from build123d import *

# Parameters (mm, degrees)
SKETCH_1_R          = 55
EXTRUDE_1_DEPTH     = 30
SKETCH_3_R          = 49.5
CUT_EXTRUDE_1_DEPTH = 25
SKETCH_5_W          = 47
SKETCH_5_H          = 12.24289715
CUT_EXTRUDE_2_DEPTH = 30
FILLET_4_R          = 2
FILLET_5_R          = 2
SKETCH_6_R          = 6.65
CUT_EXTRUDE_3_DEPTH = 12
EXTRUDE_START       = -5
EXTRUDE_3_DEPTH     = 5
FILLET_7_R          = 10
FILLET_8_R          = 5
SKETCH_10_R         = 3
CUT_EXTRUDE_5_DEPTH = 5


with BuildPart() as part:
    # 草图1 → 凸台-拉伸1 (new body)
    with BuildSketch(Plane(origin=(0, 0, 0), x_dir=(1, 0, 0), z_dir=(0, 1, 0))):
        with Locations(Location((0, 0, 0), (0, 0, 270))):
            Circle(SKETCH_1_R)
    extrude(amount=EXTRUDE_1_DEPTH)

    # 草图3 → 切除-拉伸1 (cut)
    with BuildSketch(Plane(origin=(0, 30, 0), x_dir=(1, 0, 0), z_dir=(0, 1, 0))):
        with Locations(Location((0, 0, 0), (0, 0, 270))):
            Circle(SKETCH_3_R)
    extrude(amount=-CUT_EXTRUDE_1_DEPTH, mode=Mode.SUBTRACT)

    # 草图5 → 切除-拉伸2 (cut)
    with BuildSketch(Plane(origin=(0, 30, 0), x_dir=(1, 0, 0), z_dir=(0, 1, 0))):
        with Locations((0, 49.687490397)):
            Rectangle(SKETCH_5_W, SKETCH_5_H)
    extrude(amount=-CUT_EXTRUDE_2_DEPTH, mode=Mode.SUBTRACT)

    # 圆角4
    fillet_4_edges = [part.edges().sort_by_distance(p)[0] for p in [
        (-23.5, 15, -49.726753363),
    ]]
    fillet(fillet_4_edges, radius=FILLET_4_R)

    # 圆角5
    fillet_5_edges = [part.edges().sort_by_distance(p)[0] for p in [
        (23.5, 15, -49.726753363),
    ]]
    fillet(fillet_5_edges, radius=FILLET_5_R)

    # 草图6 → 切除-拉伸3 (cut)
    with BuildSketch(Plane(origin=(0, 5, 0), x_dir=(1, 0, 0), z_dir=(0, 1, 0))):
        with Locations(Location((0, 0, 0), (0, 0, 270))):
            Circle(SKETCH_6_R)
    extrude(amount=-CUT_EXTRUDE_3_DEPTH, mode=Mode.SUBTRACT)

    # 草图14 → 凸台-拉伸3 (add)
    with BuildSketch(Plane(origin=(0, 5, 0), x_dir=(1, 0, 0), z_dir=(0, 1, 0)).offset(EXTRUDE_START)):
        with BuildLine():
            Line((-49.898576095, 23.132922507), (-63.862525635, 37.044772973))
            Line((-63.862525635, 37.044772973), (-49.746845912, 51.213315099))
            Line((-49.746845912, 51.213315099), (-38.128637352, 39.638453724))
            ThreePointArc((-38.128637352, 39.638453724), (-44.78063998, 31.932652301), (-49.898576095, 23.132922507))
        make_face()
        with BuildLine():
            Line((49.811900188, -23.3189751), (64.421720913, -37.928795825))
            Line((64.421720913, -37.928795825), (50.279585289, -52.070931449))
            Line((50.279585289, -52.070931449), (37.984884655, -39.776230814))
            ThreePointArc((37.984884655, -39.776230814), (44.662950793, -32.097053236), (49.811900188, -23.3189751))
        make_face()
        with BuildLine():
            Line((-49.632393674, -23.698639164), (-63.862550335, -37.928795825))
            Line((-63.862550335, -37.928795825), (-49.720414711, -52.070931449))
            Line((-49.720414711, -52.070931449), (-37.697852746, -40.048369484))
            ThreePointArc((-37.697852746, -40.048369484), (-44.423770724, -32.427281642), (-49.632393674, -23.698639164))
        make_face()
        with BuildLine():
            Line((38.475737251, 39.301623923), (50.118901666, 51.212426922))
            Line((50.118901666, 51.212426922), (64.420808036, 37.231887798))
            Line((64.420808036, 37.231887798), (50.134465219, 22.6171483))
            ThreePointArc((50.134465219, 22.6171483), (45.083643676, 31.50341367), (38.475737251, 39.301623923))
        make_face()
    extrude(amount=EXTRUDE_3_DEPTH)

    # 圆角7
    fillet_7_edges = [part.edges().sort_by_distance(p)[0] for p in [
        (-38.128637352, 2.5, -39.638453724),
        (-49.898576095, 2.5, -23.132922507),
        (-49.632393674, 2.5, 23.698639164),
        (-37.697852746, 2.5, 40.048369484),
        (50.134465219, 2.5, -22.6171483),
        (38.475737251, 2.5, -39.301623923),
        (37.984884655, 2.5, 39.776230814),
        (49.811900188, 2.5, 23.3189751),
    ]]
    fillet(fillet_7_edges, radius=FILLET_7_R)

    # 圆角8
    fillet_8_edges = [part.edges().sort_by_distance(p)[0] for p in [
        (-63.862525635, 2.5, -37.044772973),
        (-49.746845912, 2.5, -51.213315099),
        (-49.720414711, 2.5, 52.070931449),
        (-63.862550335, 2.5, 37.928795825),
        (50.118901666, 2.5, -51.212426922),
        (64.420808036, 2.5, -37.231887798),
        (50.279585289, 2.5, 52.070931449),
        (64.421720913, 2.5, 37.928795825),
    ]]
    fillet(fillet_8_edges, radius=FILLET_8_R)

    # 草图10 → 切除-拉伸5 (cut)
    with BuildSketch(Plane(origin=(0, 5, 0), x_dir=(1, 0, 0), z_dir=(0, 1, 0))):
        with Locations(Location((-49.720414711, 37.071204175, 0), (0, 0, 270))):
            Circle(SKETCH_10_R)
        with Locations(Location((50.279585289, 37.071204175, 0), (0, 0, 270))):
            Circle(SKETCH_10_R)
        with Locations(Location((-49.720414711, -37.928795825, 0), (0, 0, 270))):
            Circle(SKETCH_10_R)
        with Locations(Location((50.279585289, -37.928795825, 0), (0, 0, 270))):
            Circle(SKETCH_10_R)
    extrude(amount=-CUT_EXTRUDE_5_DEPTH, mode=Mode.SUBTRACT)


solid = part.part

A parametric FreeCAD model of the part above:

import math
import FreeCAD as App
import Part
import Sketcher

V = App.Vector
Q = App.Units.Quantity


def edges_at(feature, points):
    """Names of the edges that pass closest to the given points."""
    edges = feature.Shape.Edges
    near = lambda p: min(range(len(edges)), key=lambda i: edges[i].distToShape(Part.Vertex(*p))[0])
    return sorted({f"Edge{near(p) + 1}" for p in points})

doc = App.newDocument("Part")
body = doc.addObject("PartDesign::Body", "Body")

# Sketch on XZ plane
sketch1 = body.newObject("Sketcher::SketchObject", "Sketch")
sketch1.AttachmentSupport = (doc.getObject("XZ_Plane"), [""])
sketch1.MapMode = "FlatFace"
sketch1.addGeometry(Part.Circle(V(0, 0, 0), V(0, 0, 1), 55), False)
sketch1.addConstraint(Sketcher.Constraint("Coincident", 0, 3, -1, 1))
sketch1.addConstraint(Sketcher.Constraint("Diameter", 0, Q("110 mm")))
pad1 = body.newObject("PartDesign::Pad", "Pad")
pad1.Profile = sketch1
pad1.Length = 30
pad1.Reversed = True

# Sketch on XZ plane
sketch2 = body.newObject("Sketcher::SketchObject", "Sketch001")
sketch2.AttachmentSupport = (doc.getObject("XZ_Plane"), [""])
sketch2.MapMode = "FlatFace"
sketch2.AttachmentOffset = App.Placement(V(0, 0, -30), App.Rotation())
sketch2.addGeometry(Part.Circle(V(0, 0, 0), V(0, 0, 1), 50), False)
sketch2.addConstraint(Sketcher.Constraint("Coincident", 0, 3, -1, 1))
sketch2.addConstraint(Sketcher.Constraint("Diameter", 0, Q("99 mm")))
pocket1 = body.newObject("PartDesign::Pocket", "Pocket")
pocket1.Profile = sketch2
pocket1.Length = 25
pocket1.Reversed = True

# Sketch on XZ plane
sketch3 = body.newObject("Sketcher::SketchObject", "Sketch002")
sketch3.AttachmentSupport = (doc.getObject("XZ_Plane"), [""])
sketch3.MapMode = "FlatFace"
sketch3.AttachmentOffset = App.Placement(V(0, 0, -30), App.Rotation())
sketch3.addGeometry(Part.LineSegment(V(-24, -56, 0), V(-24, -44, 0)), False)
sketch3.addGeometry(Part.LineSegment(V(-24, -44, 0), V(24, -44, 0)), False)
sketch3.addGeometry(Part.LineSegment(V(24, -44, 0), V(24, -56, 0)), False)
sketch3.addGeometry(Part.LineSegment(V(24, -56, 0), V(-24, -56, 0)), False)
sketch3.addConstraint(Sketcher.Constraint("Coincident", 0, 2, 1, 1))
sketch3.addConstraint(Sketcher.Constraint("Coincident", 1, 2, 2, 1))
sketch3.addConstraint(Sketcher.Constraint("Coincident", 2, 2, 3, 1))
sketch3.addConstraint(Sketcher.Constraint("Coincident", 3, 2, 0, 1))
sketch3.addConstraint(Sketcher.Constraint("Vertical", 0))
sketch3.addConstraint(Sketcher.Constraint("Horizontal", 1))
sketch3.addConstraint(Sketcher.Constraint("Vertical", 2))
sketch3.addConstraint(Sketcher.Constraint("Horizontal", 3))
sketch3.addConstraint(Sketcher.Constraint("DistanceX", 1, 1, 1, 2, Q("47 mm")))
sketch3.addConstraint(Sketcher.Constraint("DistanceX", 0, 2, -1, 1, Q("23.5 mm")))
sketch3.addConstraint(Sketcher.Constraint("DistanceY", 0, 1, 0, 2, Q("12.242897 mm")))
sketch3.addConstraint(Sketcher.Constraint("DistanceY", 0, 2, -1, 1, Q("43.566042 mm")))
pocket2 = body.newObject("PartDesign::Pocket", "Pocket001")
pocket2.Profile = sketch3
pocket2.Length = 30
pocket2.Reversed = True
doc.recompute()

fillet = body.newObject("PartDesign::Fillet", "Fillet")
fillet.Base = (pocket2, edges_at(pocket2, [(-23.5, 15, -49.727)]))
fillet.Radius = 2
doc.recompute()

fillet2 = body.newObject("PartDesign::Fillet", "Fillet001")
fillet2.Base = (fillet, edges_at(fillet, [(23.5, 15, -49.727)]))
fillet2.Radius = 2

# Sketch on XZ plane
sketch4 = body.newObject("Sketcher::SketchObject", "Sketch003")
sketch4.AttachmentSupport = (doc.getObject("XZ_Plane"), [""])
sketch4.MapMode = "FlatFace"
sketch4.AttachmentOffset = App.Placement(V(0, 0, -5), App.Rotation())
sketch4.addGeometry(Part.Circle(V(0, 0, 0), V(0, 0, 1), 7), False)
sketch4.addConstraint(Sketcher.Constraint("Coincident", 0, 3, -1, 1))
sketch4.addConstraint(Sketcher.Constraint("Diameter", 0, Q("13.3 mm")))
pocket3 = body.newObject("PartDesign::Pocket", "Pocket002")
pocket3.Profile = sketch4
pocket3.Length = 12
pocket3.Reversed = True

# Sketch on XZ plane
sketch5 = body.newObject("Sketcher::SketchObject", "Sketch004")
sketch5.AttachmentSupport = (doc.getObject("XZ_Plane"), [""])
sketch5.MapMode = "FlatFace"
sketch5.addGeometry(Part.LineSegment(V(-64, -37, 0), V(-50, -23, 0)), False)
sketch5.addGeometry(Part.ArcOfCircle(Part.Circle(V(0, 0, 0), V(0, 0, 1), 55), math.radians(-155), math.radians(-134)), False)
sketch5.addGeometry(Part.LineSegment(V(-38, -40, 0), V(-50, -51, 0)), False)
sketch5.addGeometry(Part.LineSegment(V(-50, -51, 0), V(-64, -37, 0)), False)
sketch5.addGeometry(Part.LineSegment(V(64, 38, 0), V(50, 23, 0)), False)
sketch5.addGeometry(Part.ArcOfCircle(Part.Circle(V(0, 0, 0), V(0, 0, 1), 55), math.radians(25), math.radians(46)), False)
sketch5.addGeometry(Part.LineSegment(V(38, 40, 0), V(50, 52, 0)), False)
sketch5.addGeometry(Part.LineSegment(V(50, 52, 0), V(64, 38, 0)), False)
sketch5.addGeometry(Part.LineSegment(V(-50, 24, 0), V(-64, 38, 0)), False)
sketch5.addGeometry(Part.LineSegment(V(-64, 38, 0), V(-50, 52, 0)), False)
sketch5.addGeometry(Part.LineSegment(V(-50, 52, 0), V(-38, 40, 0)), False)
sketch5.addGeometry(Part.ArcOfCircle(Part.Circle(V(0, 0, 0), V(0, 0, 1), 55), math.radians(133), math.radians(154)), False)
sketch5.addGeometry(Part.LineSegment(V(50, -51, 0), V(38, -39, 0)), False)
sketch5.addGeometry(Part.ArcOfCircle(Part.Circle(V(0, 0, 0), V(0, 0, 1), 55), math.radians(-46), math.radians(-24)), False)
sketch5.addGeometry(Part.LineSegment(V(50, -23, 0), V(64, -37, 0)), False)
sketch5.addGeometry(Part.LineSegment(V(64, -37, 0), V(50, -51, 0)), False)
sketch5.addConstraint(Sketcher.Constraint("Coincident", 0, 2, 1, 1))
sketch5.addConstraint(Sketcher.Constraint("Coincident", 1, 2, 2, 1))
sketch5.addConstraint(Sketcher.Constraint("Coincident", 2, 2, 3, 1))
sketch5.addConstraint(Sketcher.Constraint("Coincident", 3, 2, 0, 1))
sketch5.addConstraint(Sketcher.Constraint("Coincident", 4, 2, 5, 1))
sketch5.addConstraint(Sketcher.Constraint("Coincident", 5, 2, 6, 1))
sketch5.addConstraint(Sketcher.Constraint("Coincident", 6, 2, 7, 1))
sketch5.addConstraint(Sketcher.Constraint("Coincident", 7, 2, 4, 1))
sketch5.addConstraint(Sketcher.Constraint("Coincident", 8, 2, 9, 1))
sketch5.addConstraint(Sketcher.Constraint("Coincident", 9, 2, 10, 1))
sketch5.addConstraint(Sketcher.Constraint("Coincident", 10, 2, 11, 1))
sketch5.addConstraint(Sketcher.Constraint("Coincident", 11, 2, 8, 1))
sketch5.addConstraint(Sketcher.Constraint("Coincident", 12, 2, 13, 1))
sketch5.addConstraint(Sketcher.Constraint("Coincident", 13, 2, 14, 1))
sketch5.addConstraint(Sketcher.Constraint("Coincident", 14, 2, 15, 1))
sketch5.addConstraint(Sketcher.Constraint("Coincident", 15, 2, 12, 1))
sketch5.addConstraint(Sketcher.Constraint("Coincident", 1, 3, -1, 1))
sketch5.addConstraint(Sketcher.Constraint("Coincident", 5, 3, -1, 1))
sketch5.addConstraint(Sketcher.Constraint("Coincident", 11, 3, -1, 1))
sketch5.addConstraint(Sketcher.Constraint("Coincident", 13, 3, -1, 1))
sketch5.addConstraint(Sketcher.Constraint("Equal", 1, 5))
sketch5.addConstraint(Sketcher.Constraint("Equal", 5, 11))
sketch5.addConstraint(Sketcher.Constraint("Equal", 11, 13))
sketch5.addConstraint(Sketcher.Constraint("Parallel", 0, 2))
sketch5.addConstraint(Sketcher.Constraint("Perpendicular", 2, 3))
sketch5.addConstraint(Sketcher.Constraint("Parallel", 4, 6))
sketch5.addConstraint(Sketcher.Constraint("Perpendicular", 6, 7))
sketch5.addConstraint(Sketcher.Constraint("Parallel", 7, 8))
sketch5.addConstraint(Sketcher.Constraint("Perpendicular", 8, 9))
sketch5.addConstraint(Sketcher.Constraint("Perpendicular", 9, 10))
sketch5.addConstraint(Sketcher.Constraint("Parallel", 12, 14))
sketch5.addConstraint(Sketcher.Constraint("Perpendicular", 14, 15))
sketch5.addConstraint(Sketcher.Constraint("Horizontal", 7, 2, 8, 2))
sketch5.addConstraint(Sketcher.Constraint("Horizontal", 6, 2, 9, 2))
sketch5.addConstraint(Sketcher.Constraint("Equal", 3, 7))
sketch5.addConstraint(Sketcher.Constraint("Equal", 7, 9))
sketch5.addConstraint(Sketcher.Constraint("Equal", 9, 15))
sketch5.addConstraint(Sketcher.Constraint("Radius", 1, Q("55 mm")))
sketch5.addConstraint(Sketcher.Constraint("Distance", 3, Q("20 mm")))
sketch5.addConstraint(Sketcher.Constraint("Distance", 0, Q("19.711202 mm")))
sketch5.addConstraint(Sketcher.Constraint("DistanceX", -1, 1, 4, 2, Q("49.8119 mm")))
sketch5.addConstraint(Sketcher.Constraint("DistanceX", -1, 1, 15, 2, Q("50.118902 mm")))
sketch5.addConstraint(Sketcher.Constraint("DistanceX", 5, 2, 6, 2, Q("12.294701 mm")))
sketch5.addConstraint(Sketcher.Constraint("DistanceY", 12, 2, 4, 2, Q("62.620599 mm")))
sketch5.addConstraint(Sketcher.Constraint("Distance", 8, Q("20.124481 mm")))
sketch5.addConstraint(Sketcher.Constraint("Distance", 14, Q("20.437471 mm")))
sketch5.addConstraint(Sketcher.Constraint("DistanceX", 0, 2, 1, 2, Q("11.769939 mm")))
sketch5.addConstraint(Sketcher.Constraint("DistanceY", 1, 2, 0, 2, Q("16.505531 mm")))
pad2 = body.newObject("PartDesign::Pad", "Pad001")
pad2.Profile = sketch5
pad2.Length = 5
pad2.Reversed = True
doc.recompute()

fillet3 = body.newObject("PartDesign::Fillet", "Fillet002")
fillet3.Base = (pad2, edges_at(pad2, [
    (-38.129, 2.5, -39.638),
    (-49.899, 2.5, -23.133),
    (-49.632, 2.5, 23.699),
    (-37.698, 2.5, 40.048),
    (50.134, 2.5, -22.617),
    (38.476, 2.5, -39.302),
    (37.985, 2.5, 39.776),
    (49.812, 2.5, 23.319),
]))
fillet3.Radius = 10
doc.recompute()

fillet4 = body.newObject("PartDesign::Fillet", "Fillet003")
fillet4.Base = (fillet3, edges_at(fillet3, [
    (-63.863, 2.5, -37.045),
    (-49.747, 2.5, -51.213),
    (-49.72, 2.5, 52.071),
    (-63.863, 2.5, 37.929),
    (50.119, 2.5, -51.212),
    (64.421, 2.5, -37.232),
    (50.28, 2.5, 52.071),
    (64.422, 2.5, 37.929),
]))
fillet4.Radius = 5

# Sketch on XZ plane
sketch6 = body.newObject("Sketcher::SketchObject", "Sketch005")
sketch6.AttachmentSupport = (doc.getObject("XZ_Plane"), [""])
sketch6.MapMode = "FlatFace"
sketch6.AttachmentOffset = App.Placement(V(0, 0, -5), App.Rotation())
sketch6.addGeometry(Part.Circle(V(-49.7, -37.1, 0), V(0, 0, 1), 3), False)
sketch6.addGeometry(Part.Circle(V(50.3, -37.1, 0), V(0, 0, 1), 3), False)
sketch6.addGeometry(Part.Circle(V(-49.7, 37.9, 0), V(0, 0, 1), 3), False)
sketch6.addGeometry(Part.Circle(V(50.3, 37.9, 0), V(0, 0, 1), 3), False)
sketch6.addConstraint(Sketcher.Constraint("Equal", 0, 1))
sketch6.addConstraint(Sketcher.Constraint("Equal", 1, 2))
sketch6.addConstraint(Sketcher.Constraint("Equal", 2, 3))
sketch6.addConstraint(Sketcher.Constraint("Horizontal", 0, 3, 1, 3))
sketch6.addConstraint(Sketcher.Constraint("Horizontal", 2, 3, 3, 3))
sketch6.addConstraint(Sketcher.Constraint("Vertical", 0, 3, 2, 3))
sketch6.addConstraint(Sketcher.Constraint("Vertical", 1, 3, 3, 3))
sketch6.addConstraint(Sketcher.Constraint("Diameter", 0, Q("6 mm")))
sketch6.addConstraint(Sketcher.Constraint("DistanceX", 0, 3, 1, 3, Q("100 mm")))
sketch6.addConstraint(Sketcher.Constraint("DistanceY", 0, 3, 2, 3, Q("75 mm")))
sketch6.addConstraint(Sketcher.Constraint("DistanceX", 0, 3, -1, 1, Q("49.720415 mm")))
sketch6.addConstraint(Sketcher.Constraint("DistanceY", 0, 3, -1, 1, Q("37.071204 mm")))
pocket4 = body.newObject("PartDesign::Pocket", "Pocket003")
pocket4.Profile = sketch6
pocket4.Length = 5
pocket4.Reversed = True

doc.recompute()
